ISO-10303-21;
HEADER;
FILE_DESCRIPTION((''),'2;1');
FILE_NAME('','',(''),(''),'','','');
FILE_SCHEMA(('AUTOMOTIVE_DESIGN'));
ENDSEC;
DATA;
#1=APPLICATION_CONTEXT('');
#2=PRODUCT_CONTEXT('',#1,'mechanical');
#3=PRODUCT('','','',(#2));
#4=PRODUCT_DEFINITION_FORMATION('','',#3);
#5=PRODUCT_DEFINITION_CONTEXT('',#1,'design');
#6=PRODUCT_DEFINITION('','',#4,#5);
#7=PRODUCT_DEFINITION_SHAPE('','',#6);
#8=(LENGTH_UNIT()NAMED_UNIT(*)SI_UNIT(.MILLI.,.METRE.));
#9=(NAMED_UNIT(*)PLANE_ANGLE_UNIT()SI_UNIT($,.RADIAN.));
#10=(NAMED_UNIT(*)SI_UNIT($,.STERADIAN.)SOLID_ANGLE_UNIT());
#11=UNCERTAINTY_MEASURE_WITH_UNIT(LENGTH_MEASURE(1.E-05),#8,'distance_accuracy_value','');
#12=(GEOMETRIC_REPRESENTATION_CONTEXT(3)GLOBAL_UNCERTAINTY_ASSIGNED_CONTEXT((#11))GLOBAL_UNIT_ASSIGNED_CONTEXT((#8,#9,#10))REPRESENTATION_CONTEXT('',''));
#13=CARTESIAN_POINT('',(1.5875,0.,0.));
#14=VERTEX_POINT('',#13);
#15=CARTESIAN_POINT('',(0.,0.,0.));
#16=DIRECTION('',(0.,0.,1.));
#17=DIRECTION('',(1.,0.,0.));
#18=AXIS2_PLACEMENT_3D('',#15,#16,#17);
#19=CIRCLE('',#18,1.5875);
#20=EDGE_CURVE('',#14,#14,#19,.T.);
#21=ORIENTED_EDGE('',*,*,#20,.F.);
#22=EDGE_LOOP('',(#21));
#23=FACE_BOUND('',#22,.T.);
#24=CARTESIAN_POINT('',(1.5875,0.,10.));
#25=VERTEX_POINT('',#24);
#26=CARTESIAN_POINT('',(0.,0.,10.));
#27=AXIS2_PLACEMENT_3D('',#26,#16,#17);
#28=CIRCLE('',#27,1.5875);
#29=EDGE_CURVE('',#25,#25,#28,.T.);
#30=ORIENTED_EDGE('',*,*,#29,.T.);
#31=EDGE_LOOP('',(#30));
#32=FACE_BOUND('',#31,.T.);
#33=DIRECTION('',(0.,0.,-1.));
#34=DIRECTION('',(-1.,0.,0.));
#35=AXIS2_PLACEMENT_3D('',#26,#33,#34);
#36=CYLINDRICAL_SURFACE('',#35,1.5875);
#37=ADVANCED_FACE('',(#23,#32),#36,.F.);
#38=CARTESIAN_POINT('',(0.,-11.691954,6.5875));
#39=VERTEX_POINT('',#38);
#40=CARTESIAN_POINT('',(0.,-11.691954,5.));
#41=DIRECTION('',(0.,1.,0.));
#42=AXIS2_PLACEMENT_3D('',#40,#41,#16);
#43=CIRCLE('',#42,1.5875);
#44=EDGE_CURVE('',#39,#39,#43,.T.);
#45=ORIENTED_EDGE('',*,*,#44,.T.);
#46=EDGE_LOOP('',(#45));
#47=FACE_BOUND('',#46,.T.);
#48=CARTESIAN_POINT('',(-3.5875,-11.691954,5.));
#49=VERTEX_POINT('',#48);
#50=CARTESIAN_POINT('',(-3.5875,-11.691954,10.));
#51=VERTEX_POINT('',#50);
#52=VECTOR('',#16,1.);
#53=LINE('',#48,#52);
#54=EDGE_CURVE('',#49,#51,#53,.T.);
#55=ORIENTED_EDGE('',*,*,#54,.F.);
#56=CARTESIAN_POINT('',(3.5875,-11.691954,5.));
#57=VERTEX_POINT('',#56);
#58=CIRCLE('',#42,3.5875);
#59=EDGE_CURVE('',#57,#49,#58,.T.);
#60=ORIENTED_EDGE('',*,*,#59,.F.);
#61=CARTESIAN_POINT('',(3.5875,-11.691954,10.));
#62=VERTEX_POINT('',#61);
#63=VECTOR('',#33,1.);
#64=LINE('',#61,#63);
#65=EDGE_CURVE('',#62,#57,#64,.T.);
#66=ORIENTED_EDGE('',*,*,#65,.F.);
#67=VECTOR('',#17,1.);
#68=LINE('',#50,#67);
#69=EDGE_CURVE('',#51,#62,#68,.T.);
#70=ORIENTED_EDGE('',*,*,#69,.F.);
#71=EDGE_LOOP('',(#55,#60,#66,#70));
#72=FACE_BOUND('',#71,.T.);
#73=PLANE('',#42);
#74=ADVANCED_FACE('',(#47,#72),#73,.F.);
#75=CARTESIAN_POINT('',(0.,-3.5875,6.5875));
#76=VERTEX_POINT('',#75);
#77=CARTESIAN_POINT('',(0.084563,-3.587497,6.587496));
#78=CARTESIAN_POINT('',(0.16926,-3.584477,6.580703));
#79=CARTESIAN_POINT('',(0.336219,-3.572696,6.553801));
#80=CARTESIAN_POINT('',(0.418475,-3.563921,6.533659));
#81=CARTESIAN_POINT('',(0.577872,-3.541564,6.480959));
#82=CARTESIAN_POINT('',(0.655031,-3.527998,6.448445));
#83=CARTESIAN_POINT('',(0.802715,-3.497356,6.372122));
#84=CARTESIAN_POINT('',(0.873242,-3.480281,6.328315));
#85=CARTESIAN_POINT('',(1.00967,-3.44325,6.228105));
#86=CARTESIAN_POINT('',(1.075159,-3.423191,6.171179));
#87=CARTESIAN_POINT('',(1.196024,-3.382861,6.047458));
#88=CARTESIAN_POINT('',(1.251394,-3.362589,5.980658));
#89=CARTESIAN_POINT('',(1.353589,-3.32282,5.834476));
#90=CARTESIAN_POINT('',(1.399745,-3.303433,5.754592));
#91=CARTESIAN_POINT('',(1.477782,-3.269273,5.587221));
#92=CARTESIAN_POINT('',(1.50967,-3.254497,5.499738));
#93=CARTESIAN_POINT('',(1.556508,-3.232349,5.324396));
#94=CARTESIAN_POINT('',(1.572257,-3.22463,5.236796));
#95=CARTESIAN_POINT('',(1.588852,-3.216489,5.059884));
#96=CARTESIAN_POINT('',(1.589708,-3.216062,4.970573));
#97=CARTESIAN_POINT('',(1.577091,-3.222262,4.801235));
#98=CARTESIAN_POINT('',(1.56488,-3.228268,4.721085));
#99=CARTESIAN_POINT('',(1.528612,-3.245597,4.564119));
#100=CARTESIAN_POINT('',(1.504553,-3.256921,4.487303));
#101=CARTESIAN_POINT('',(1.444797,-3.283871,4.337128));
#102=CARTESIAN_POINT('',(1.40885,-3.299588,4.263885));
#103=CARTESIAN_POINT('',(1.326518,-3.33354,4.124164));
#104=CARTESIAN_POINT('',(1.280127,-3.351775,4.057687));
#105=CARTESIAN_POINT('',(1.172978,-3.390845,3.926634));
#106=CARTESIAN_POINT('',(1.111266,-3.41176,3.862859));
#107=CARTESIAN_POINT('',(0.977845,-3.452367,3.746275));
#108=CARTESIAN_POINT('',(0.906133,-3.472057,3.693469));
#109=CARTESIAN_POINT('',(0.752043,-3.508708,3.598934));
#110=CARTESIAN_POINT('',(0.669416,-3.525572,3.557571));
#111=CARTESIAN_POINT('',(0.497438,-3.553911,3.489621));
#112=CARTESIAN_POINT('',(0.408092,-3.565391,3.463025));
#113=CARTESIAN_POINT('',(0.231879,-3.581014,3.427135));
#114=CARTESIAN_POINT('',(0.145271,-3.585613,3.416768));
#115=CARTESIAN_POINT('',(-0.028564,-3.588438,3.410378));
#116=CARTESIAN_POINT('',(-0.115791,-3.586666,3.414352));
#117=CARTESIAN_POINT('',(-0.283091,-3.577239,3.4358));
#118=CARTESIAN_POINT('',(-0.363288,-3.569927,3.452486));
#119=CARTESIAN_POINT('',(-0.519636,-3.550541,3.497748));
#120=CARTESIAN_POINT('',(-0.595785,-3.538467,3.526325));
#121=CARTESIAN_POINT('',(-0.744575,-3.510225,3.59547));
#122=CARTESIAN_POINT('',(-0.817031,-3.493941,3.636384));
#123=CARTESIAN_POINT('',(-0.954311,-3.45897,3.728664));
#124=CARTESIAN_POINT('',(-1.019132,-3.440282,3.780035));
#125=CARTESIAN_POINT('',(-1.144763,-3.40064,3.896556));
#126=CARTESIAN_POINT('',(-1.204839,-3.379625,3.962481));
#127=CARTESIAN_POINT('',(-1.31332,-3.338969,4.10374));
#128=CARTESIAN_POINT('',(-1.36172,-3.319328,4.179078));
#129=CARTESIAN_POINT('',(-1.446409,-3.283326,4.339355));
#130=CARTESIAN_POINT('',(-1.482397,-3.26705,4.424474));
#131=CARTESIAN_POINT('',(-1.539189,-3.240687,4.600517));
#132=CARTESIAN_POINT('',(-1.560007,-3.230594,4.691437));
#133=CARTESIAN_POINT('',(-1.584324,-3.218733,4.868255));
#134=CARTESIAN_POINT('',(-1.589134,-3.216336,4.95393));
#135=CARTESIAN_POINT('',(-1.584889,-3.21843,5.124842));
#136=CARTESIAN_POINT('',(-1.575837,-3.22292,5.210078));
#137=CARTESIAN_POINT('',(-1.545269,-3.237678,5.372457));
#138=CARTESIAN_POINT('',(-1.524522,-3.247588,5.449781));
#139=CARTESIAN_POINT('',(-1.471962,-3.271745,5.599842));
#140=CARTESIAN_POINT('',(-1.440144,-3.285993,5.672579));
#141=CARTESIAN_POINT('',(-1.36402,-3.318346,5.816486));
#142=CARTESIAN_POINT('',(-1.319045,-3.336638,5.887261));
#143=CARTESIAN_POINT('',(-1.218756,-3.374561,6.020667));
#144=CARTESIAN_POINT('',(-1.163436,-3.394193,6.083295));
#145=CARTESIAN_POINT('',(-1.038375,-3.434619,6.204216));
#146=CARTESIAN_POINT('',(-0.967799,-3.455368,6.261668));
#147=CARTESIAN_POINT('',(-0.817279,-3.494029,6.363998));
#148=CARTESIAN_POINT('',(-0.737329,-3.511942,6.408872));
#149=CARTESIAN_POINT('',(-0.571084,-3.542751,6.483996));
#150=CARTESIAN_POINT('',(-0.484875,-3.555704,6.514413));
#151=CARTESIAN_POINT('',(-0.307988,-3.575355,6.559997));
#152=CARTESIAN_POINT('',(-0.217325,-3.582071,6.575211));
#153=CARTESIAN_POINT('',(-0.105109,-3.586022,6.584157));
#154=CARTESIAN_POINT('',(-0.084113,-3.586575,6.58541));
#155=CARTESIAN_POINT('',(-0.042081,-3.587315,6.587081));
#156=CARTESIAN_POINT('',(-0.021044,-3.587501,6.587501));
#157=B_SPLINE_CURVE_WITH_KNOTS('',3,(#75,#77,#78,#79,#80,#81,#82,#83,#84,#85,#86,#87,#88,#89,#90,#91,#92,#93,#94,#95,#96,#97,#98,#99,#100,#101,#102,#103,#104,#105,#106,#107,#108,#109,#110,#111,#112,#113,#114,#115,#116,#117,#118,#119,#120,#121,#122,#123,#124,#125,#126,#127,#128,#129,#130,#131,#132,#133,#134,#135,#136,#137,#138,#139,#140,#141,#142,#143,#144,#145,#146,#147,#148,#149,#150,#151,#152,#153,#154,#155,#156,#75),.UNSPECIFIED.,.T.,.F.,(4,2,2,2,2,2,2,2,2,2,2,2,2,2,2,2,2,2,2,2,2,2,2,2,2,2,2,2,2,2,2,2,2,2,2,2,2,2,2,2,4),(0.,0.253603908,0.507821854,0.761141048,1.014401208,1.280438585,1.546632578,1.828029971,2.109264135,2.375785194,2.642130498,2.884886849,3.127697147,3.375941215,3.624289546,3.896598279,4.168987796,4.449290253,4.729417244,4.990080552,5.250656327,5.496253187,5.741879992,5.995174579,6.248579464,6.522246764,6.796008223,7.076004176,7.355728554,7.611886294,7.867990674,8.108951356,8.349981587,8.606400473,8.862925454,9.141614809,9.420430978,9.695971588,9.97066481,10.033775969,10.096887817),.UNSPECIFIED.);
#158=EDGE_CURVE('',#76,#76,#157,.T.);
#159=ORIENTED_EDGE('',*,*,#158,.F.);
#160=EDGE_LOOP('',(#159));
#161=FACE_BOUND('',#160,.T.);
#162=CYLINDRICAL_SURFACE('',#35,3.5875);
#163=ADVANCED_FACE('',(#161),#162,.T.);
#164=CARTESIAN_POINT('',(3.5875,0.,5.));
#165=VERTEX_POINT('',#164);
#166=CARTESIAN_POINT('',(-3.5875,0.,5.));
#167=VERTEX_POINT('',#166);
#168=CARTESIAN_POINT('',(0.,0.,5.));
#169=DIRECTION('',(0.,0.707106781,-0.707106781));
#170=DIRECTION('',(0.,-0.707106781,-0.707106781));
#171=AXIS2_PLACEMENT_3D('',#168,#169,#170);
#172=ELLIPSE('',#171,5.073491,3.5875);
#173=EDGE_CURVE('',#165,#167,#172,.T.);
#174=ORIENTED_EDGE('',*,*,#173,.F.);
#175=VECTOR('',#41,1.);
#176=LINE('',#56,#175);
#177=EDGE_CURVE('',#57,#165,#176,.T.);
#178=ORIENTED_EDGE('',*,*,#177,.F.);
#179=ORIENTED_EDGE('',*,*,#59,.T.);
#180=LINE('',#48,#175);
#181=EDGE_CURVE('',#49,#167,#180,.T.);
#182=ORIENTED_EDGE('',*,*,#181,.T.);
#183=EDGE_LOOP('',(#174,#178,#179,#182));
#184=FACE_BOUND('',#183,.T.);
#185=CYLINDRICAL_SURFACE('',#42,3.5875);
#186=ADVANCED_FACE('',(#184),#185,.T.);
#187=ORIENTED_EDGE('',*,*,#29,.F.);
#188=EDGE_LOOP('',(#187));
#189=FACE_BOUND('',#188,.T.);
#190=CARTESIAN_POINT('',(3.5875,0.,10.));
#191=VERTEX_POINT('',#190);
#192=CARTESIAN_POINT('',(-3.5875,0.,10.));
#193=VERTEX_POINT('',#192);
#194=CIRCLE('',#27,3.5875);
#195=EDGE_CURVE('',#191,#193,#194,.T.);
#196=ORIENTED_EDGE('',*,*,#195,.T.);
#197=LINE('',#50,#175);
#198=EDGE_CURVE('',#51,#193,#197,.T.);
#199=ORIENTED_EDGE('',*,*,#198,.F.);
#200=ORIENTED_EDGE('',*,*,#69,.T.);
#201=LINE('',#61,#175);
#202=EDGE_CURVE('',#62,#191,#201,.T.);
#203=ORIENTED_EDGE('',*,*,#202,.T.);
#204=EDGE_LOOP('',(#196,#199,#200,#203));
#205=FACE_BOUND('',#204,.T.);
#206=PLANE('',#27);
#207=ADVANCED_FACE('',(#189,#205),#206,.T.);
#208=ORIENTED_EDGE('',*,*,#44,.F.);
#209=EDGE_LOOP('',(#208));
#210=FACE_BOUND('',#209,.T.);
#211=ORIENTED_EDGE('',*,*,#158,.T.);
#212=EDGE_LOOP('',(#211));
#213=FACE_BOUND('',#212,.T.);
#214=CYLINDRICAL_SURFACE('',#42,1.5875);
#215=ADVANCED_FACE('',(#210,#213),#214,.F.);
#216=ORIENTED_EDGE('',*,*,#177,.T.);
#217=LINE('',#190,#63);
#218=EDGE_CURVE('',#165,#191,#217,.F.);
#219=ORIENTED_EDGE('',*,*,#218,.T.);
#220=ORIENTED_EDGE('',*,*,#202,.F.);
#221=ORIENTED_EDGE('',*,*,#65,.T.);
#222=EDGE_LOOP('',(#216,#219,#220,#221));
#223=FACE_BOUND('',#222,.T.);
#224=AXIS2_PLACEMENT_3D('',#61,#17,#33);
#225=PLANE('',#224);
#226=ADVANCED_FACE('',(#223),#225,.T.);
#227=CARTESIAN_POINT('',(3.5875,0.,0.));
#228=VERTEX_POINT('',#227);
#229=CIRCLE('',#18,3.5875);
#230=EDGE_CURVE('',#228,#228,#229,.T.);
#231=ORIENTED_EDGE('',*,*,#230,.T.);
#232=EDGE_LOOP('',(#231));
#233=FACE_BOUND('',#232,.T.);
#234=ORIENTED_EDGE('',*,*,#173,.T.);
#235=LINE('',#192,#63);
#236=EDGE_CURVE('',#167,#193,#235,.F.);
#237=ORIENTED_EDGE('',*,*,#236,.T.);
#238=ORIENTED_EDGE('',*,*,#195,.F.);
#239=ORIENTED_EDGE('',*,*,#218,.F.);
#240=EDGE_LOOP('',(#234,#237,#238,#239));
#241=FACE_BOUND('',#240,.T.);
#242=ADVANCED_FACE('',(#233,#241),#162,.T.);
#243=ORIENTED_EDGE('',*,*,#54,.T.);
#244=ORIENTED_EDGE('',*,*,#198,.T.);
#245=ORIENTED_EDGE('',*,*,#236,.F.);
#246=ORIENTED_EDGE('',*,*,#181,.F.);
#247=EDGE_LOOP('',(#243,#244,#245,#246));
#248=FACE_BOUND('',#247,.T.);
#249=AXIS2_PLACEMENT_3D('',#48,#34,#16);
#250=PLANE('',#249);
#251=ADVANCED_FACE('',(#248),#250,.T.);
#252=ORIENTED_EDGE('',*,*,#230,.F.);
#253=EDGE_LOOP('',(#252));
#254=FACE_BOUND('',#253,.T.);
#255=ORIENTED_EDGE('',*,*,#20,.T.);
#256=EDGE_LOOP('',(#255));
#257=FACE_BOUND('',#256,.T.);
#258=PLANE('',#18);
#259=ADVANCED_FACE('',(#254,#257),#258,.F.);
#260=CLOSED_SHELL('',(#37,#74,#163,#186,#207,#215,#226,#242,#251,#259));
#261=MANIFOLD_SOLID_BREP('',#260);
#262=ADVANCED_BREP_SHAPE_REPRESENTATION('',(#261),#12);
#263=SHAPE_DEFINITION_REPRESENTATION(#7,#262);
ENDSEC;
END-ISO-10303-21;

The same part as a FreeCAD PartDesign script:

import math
import FreeCAD as App
import Part
import Sketcher

V = App.Vector

doc = App.newDocument("Part")
body = doc.addObject("PartDesign::Body", "Body")

# Sketch on XY plane
sketch1 = body.newObject("Sketcher::SketchObject", "Sketch")
sketch1.AttachmentSupport = (doc.getObject("XY_Plane"), [""])
sketch1.MapMode = "FlatFace"
sketch1.addGeometry([
    Part.Circle(V(0, 0, 0), V(0, 0, 1), 3.5875),
    Part.Circle(V(0, 0, 0), V(0, 0, 1), 1.5875),
], False)
sketch1.addConstraint([
    Sketcher.Constraint("Coincident", 0, 3, -1, 1),
    Sketcher.Constraint("Coincident", 1, 3, -1, 1),
    Sketcher.Constraint("Diameter", 0, 7.175),
    Sketcher.Constraint("Diameter", 1, 3.175),
])
pad1 = body.newObject("PartDesign::Pad", "Pad")
pad1.Profile = sketch1
pad1.Length = 10

# Sketch on XZ plane
sketch2 = body.newObject("Sketcher::SketchObject", "Sketch001")
sketch2.AttachmentSupport = (doc.getObject("XZ_Plane"), [""])
sketch2.MapMode = "FlatFace"
sketch2.AttachmentOffset = App.Placement(V(0, 0, 1.691954), App.Rotation())
sketch2.addGeometry([
    Part.LineSegment(V(-3.5875, 5, 0), V(-3.5875, 10, 0)),  # 0
    Part.LineSegment(V(-3.5875, 10, 0), V(3.5875, 10, 0)),  # 1
    Part.LineSegment(V(3.5875, 10, 0), V(3.5875, 5, 0)),  # 2
    Part.ArcOfCircle(Part.Circle(V(0, 5, 0), V(0, 0, 1), 3.5875), math.radians(180), math.radians(360)),  # 3
    Part.Circle(V(0, 5, 0), V(0, 0, 1), 1.5875),  # 4
], False)
sketch2.addConstraint([
    Sketcher.Constraint("Coincident", 0, 2, 1, 1),
    Sketcher.Constraint("Coincident", 1, 2, 2, 1),
    Sketcher.Constraint("Tangent", 2, 2, 3, 2),
    Sketcher.Constraint("Tangent", 3, 1, 0, 1),
    Sketcher.Constraint("Vertical", 0),
    Sketcher.Constraint("Horizontal", 1),
    Sketcher.Constraint("Vertical", 2),
    Sketcher.Constraint("Coincident", 4, 3, 3, 3),
    Sketcher.Constraint("PointOnObject", 3, 3, -2),
    Sketcher.Constraint("DistanceY", 0, 1, 0, 2, 5.0),
    Sketcher.Constraint("Diameter", 4, 3.175),
    Sketcher.Constraint("DistanceY", -1, 1, 3, 3, 5.0),
    Sketcher.Constraint("Radius", 3, 3.5875),
])
pad2 = body.newObject("PartDesign::Pad", "Pad001")
pad2.Profile = sketch2
pad2.Length = 10

# Sketch on XZ plane
sketch3 = body.newObject("Sketcher::SketchObject", "Sketch002")
sketch3.AttachmentSupport = (doc.getObject("XZ_Plane"), [""])
sketch3.MapMode = "FlatFace"
sketch3.AttachmentOffset = App.Placement(V(0, 0, 1.691954), App.Rotation())
sketch3.addGeometry([
    Part.LineSegment(V(-3.5875, 5, 0), V(-3.5875, 10, 0)),
    Part.LineSegment(V(-3.5875, 10, 0), V(-3.163455, 10, 0)),
    Part.LineSegment(V(-3.163455, 10, 0), V(-3.163455, 3.308046, 0)),
    Part.ArcOfCircle(Part.Circle(V(0, 5, 0), V(0, 0, 1), 3.5875), math.radians(-180), math.radians(-151.860185)),
], False)
sketch3.addConstraint([
    Sketcher.Constraint("Coincident", 0, 2, 1, 1),
    Sketcher.Constraint("Coincident", 1, 2, 2, 1),
    Sketcher.Constraint("Coincident", 2, 2, 3, 2),
    Sketcher.Constraint("Tangent", 3, 1, 0, 1),
    Sketcher.Constraint("Vertical", 0),
    Sketcher.Constraint("Horizontal", 1),
    Sketcher.Constraint("Vertical", 2),
    Sketcher.Constraint("PointOnObject", 3, 3, -2),
    Sketcher.Constraint("DistanceY", 0, 1, 0, 2, 5.0),
    Sketcher.Constraint("DistanceY", -1, 1, 3, 3, 5.0),
    Sketcher.Constraint("Radius", 3, 3.5875),
    Sketcher.Constraint("DistanceX", 1, 1, 1, 2, 0.424045),
])
pad3 = body.newObject("PartDesign::Pad", "Pad002")
pad3.Profile = sketch3
pad3.Length = 1.691954
pad3.Reversed = True

# Sketch on XZ plane
sketch4 = body.newObject("Sketcher::SketchObject", "Sketch003")
sketch4.AttachmentSupport = (doc.getObject("XZ_Plane"), [""])
sketch4.MapMode = "FlatFace"
sketch4.AttachmentOffset = App.Placement(V(0, 0, 1.691954), App.Rotation())
sketch4.addGeometry([
    Part.LineSegment(V(3.163455, 3.308046, 0), V(3.163455, 10, 0)),
    Part.LineSegment(V(3.163455, 10, 0), V(3.5875, 10, 0)),
    Part.LineSegment(V(3.5875, 10, 0), V(3.5875, 5, 0)),
    Part.ArcOfCircle(Part.Circle(V(0, 5, 0), V(0, 0, 1), 3.5875), math.radians(-28.139815), math.radians(0)),
], False)
sketch4.addConstraint([
    Sketcher.Constraint("Coincident", 0, 2, 1, 1),
    Sketcher.Constraint("Coincident", 1, 2, 2, 1),
    Sketcher.Constraint("Tangent", 2, 2, 3, 2),
    Sketcher.Constraint("Coincident", 3, 1, 0, 1),
    Sketcher.Constraint("Vertical", 0),
    Sketcher.Constraint("Horizontal", 1),
    Sketcher.Constraint("Vertical", 2),
    Sketcher.Constraint("PointOnObject", 3, 3, -2),
    Sketcher.Constraint("DistanceY", 2, 2, 2, 1, 5.0),
    Sketcher.Constraint("DistanceY", -1, 1, 3, 3, 5.0),
    Sketcher.Constraint("Radius", 3, 3.5875),
    Sketcher.Constraint("DistanceX", 1, 1, 1, 2, 0.424045),
])
pad4 = body.newObject("PartDesign::Pad", "Pad003")
pad4.Profile = sketch4
pad4.Length = 1.691954
pad4.Reversed = True

doc.recompute()
